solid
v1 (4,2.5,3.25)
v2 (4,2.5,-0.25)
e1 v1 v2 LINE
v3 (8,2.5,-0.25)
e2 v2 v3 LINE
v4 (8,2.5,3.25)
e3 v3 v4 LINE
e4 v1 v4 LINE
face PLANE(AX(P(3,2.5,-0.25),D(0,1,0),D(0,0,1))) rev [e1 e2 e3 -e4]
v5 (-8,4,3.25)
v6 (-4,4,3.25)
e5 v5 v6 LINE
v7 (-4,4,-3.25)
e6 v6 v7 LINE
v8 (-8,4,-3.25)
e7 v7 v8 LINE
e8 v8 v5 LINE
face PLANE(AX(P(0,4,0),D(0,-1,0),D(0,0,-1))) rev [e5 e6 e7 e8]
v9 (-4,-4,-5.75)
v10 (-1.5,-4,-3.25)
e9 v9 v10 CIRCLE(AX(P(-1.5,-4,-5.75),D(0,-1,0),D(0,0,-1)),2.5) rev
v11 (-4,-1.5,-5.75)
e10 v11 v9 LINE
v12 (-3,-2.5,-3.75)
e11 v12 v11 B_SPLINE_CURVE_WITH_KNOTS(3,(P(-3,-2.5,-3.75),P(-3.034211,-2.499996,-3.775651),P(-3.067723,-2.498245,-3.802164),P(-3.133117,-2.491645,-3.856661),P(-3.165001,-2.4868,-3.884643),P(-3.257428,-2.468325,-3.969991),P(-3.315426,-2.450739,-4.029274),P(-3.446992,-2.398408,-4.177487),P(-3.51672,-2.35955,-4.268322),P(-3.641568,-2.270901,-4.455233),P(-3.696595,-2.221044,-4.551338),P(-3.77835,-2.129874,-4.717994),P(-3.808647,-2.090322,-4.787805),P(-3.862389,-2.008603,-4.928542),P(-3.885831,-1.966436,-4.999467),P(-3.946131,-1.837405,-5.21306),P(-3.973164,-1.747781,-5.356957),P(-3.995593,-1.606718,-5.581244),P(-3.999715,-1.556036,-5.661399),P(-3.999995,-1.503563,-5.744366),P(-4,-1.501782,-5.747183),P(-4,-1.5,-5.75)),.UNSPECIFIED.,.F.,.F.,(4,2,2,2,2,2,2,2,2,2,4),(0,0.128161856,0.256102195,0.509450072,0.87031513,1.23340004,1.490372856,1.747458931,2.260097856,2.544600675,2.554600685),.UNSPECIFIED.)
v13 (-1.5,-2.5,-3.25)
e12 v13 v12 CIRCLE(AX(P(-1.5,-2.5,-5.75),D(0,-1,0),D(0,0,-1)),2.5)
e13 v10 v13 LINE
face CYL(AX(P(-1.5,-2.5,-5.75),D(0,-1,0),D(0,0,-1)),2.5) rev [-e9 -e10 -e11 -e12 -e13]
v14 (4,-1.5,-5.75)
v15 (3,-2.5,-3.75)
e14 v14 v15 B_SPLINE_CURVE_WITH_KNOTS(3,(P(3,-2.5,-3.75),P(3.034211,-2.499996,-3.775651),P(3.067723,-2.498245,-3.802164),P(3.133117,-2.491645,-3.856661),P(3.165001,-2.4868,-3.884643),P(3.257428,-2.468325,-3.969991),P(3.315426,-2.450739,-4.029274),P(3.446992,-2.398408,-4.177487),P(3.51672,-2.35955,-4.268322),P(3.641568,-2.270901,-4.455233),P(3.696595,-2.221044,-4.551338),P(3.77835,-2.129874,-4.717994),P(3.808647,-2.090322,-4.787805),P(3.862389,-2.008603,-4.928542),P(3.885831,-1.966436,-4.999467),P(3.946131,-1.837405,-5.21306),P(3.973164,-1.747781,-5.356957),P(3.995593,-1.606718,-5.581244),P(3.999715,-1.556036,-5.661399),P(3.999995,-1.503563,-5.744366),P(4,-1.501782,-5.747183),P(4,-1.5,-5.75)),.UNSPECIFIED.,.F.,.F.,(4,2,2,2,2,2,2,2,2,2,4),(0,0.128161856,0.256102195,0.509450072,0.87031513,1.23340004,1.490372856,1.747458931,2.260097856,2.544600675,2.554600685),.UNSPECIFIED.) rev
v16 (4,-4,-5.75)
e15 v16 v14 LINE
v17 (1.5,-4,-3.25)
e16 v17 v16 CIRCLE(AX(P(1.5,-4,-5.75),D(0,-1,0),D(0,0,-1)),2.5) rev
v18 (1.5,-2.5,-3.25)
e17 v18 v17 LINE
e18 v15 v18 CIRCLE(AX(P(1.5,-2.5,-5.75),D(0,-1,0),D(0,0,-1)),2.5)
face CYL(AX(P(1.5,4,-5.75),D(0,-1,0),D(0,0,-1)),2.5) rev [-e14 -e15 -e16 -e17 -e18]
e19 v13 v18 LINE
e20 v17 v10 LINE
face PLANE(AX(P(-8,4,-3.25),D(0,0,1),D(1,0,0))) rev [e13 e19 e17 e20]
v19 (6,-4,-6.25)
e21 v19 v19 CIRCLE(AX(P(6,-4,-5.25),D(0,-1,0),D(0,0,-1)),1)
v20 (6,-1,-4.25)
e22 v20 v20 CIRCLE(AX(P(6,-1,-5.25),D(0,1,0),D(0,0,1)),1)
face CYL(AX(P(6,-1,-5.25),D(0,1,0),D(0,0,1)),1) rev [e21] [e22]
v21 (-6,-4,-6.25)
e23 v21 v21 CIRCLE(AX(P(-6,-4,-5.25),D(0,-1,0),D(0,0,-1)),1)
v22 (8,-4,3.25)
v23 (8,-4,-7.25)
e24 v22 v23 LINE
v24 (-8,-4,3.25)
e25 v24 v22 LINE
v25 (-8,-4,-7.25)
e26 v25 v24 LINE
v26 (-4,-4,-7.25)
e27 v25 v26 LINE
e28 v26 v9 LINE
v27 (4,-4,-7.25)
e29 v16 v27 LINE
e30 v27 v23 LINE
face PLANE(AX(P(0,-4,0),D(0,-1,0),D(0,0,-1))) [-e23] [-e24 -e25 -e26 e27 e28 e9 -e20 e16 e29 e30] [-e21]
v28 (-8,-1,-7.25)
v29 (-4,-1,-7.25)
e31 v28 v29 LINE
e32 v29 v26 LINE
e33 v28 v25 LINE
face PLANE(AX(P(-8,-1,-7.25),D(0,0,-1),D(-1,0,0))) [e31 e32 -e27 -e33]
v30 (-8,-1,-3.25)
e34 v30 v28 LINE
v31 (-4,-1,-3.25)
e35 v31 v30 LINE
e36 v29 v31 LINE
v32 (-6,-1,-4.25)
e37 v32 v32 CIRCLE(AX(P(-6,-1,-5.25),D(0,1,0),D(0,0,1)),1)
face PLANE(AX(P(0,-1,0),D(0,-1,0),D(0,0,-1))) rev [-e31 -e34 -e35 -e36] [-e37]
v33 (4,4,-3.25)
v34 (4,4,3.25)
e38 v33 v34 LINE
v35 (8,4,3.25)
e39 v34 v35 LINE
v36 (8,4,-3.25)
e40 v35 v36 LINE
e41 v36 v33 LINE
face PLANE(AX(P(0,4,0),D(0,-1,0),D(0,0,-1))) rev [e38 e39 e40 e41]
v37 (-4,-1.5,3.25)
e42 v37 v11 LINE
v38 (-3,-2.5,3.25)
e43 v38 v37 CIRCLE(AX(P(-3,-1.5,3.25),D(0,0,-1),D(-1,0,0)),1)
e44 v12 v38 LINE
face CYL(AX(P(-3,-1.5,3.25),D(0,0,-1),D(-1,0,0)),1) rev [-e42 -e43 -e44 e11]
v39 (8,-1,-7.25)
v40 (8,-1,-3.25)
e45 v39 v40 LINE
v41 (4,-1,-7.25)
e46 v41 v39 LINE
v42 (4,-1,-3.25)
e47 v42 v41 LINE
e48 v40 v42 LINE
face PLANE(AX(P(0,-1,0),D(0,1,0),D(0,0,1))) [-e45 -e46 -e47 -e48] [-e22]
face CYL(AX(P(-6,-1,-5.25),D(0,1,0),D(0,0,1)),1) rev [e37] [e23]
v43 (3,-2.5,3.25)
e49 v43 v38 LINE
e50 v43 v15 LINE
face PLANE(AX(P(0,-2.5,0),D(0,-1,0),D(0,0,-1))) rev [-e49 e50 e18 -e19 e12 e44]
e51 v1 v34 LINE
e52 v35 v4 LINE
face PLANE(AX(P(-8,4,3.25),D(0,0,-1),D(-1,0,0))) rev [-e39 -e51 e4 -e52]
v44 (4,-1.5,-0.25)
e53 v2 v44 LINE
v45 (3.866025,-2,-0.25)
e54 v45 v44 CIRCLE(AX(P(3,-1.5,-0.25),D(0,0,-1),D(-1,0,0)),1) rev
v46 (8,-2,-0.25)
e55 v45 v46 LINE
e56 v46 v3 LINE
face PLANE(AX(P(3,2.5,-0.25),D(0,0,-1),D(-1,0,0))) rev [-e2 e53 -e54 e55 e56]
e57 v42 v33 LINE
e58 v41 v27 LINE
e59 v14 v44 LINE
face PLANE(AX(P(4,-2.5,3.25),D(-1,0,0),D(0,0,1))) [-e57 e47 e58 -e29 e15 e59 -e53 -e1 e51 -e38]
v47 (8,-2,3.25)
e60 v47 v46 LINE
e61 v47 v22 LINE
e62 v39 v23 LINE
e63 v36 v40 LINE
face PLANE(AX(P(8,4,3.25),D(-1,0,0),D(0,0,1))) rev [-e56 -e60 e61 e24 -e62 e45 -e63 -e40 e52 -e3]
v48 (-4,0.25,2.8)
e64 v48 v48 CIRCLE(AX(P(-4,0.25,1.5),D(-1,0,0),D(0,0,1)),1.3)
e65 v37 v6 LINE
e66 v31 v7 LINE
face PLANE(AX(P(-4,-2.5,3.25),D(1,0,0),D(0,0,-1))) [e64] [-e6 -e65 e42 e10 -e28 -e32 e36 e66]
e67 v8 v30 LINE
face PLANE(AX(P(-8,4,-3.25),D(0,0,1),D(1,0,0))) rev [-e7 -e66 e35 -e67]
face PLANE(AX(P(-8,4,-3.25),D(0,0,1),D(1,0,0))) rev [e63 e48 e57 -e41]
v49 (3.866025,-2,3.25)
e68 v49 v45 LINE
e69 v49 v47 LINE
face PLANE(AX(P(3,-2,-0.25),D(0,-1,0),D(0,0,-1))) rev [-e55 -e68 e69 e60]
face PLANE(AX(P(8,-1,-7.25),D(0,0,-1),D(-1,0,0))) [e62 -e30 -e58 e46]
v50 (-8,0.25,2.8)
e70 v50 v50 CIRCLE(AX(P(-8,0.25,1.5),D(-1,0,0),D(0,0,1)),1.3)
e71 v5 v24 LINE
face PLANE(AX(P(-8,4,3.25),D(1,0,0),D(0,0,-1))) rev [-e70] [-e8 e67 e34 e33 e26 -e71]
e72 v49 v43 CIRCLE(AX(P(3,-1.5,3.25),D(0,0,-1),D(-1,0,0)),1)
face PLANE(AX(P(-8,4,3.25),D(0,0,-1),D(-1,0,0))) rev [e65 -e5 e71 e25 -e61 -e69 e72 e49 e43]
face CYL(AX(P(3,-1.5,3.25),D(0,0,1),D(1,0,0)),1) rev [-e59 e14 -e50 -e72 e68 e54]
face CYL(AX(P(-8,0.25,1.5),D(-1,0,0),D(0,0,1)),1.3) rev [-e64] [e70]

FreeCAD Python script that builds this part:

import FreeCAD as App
import Part
import Sketcher
from FreeCAD import Vector


def edges_at(feature, points):
    """Names of the edges that pass closest to the given points."""
    edges = feature.Shape.Edges
    near = lambda p: min(range(len(edges)), key=lambda i: edges[i].distToShape(Part.Vertex(*p))[0])
    return sorted({f"Edge{near(p) + 1}" for p in points})


def add_polygon(sketch, points):
    """Adds a closed chain of lines whose ends are joined by coincident constraints."""
    first, n = sketch.GeometryCount, len(points)
    for a, b in zip(points, points[1:] + points[:1]):
        sketch.addGeometry(Part.LineSegment(App.Vector(*a, 0), App.Vector(*b, 0)), False)
    for i in range(n):
        sketch.addConstraint(Sketcher.Constraint("Coincident", first + i, 2, first + (i + 1) % n, 1))

doc = App.newDocument("Part")
body = doc.addObject("PartDesign::Body", "Body")

# Sketch on XZ plane
sketch1 = body.newObject("Sketcher::SketchObject", "Sketch")
sketch1.AttachmentSupport = (doc.getObject("XZ_Plane"), [""])
sketch1.MapMode = "FlatFace"
add_polygon(sketch1, [(-8, -3), (-8, 3), (8, 3), (8, -3)])  # lines 0-3
sketch1.addConstraint([
    Sketcher.Constraint("Vertical", 0),
    Sketcher.Constraint("Horizontal", 1),
    Sketcher.Constraint("Vertical", 2),
    Sketcher.Constraint("Horizontal", 3),
    Sketcher.Constraint("Symmetric", 0, 2, 2, 2, -1, 1),
    Sketcher.Constraint("DistanceX", 1, 1, 1, 2, 16.0),
    Sketcher.Constraint("DistanceY", 0, 1, 0, 2, 6.5),
])
pad1 = body.newObject("PartDesign::Pad", "Pad")
pad1.Profile = sketch1
pad1.Length = 8
pad1.Midplane = True

# Sketch on XZ plane
sketch2 = body.newObject("Sketcher::SketchObject", "Sketch001")
sketch2.AttachmentSupport = (doc.getObject("XZ_Plane"), [""])
sketch2.MapMode = "FlatFace"
sketch2.AttachmentOffset = App.Placement(Vector(0, 0, -4), App.Rotation())
add_polygon(sketch2, [(-4, 3), (-4, -3), (4, -3), (4, 3)])  # lines 0-3
sketch2.addConstraint([
    Sketcher.Constraint("Vertical", 0),
    Sketcher.Constraint("Horizontal", 1),
    Sketcher.Constraint("Vertical", 2),
    Sketcher.Constraint("Horizontal", 3),
    Sketcher.Constraint("Symmetric", 0, 2, 2, 2, -1, 1),
    Sketcher.Constraint("DistanceX", 1, 1, 1, 2, 8.0),
    Sketcher.Constraint("DistanceY", 0, 2, 0, 1, 6.5),
])
pocket1 = body.newObject("PartDesign::Pocket", "Pocket")
pocket1.Profile = sketch2
pocket1.Length = 6.5
pocket1.Reversed = True

# Sketch on XZ plane
sketch3 = body.newObject("Sketcher::SketchObject", "Sketch002")
sketch3.AttachmentSupport = (doc.getObject("XZ_Plane"), [""])
sketch3.MapMode = "FlatFace"
sketch3.AttachmentOffset = App.Placement(Vector(0, 0, 4), App.Rotation())
add_polygon(sketch3, [(4, -3.2), (4, -7.2), (8, -7.2), (8, -3.2)])  # lines 0-3
add_polygon(sketch3, [(-8, -3.2), (-8, -7.2), (-4, -7.2), (-4, -3.2)])  # lines 4-7
sketch3.addConstraint([
    Sketcher.Constraint("Vertical", 0),
    Sketcher.Constraint("Horizontal", 1),
    Sketcher.Constraint("Vertical", 2),
    Sketcher.Constraint("Horizontal", 3),
    Sketcher.Constraint("Vertical", 4),
    Sketcher.Constraint("Horizontal", 5),
    Sketcher.Constraint("Vertical", 6),
    Sketcher.Constraint("Horizontal", 7),
    Sketcher.Constraint("Symmetric", 1, 2, 4, 2, -2),
    Sketcher.Constraint("Symmetric", 3, 2, 6, 2, -2),
    Sketcher.Constraint("Equal", 7, 0),
    Sketcher.Constraint("DistanceX", 1, 1, 1, 2, 4.0),
    Sketcher.Constraint("DistanceX", -1, 1, 0, 2, 4.0),
    Sketcher.Constraint("DistanceY", 0, 2, -1, 1, 7.25),
])
pad2 = body.newObject("PartDesign::Pad", "Pad001")
pad2.Profile = sketch3
pad2.Length = 3
pad2.Reversed = True

# Sketch on XZ plane
sketch4 = body.newObject("Sketcher::SketchObject", "Sketch003")
sketch4.AttachmentSupport = (doc.getObject("XZ_Plane"), [""])
sketch4.MapMode = "FlatFace"
sketch4.AttachmentOffset = App.Placement(Vector(0, 0, 1), App.Rotation())
sketch4.addGeometry([
    Part.Circle(Vector(6, -5.2, 0), Vector(0, 0, 1), 1),
    Part.Circle(Vector(-6, -5.2, 0), Vector(0, 0, 1), 1),
], False)
sketch4.addConstraint([
    Sketcher.Constraint("Equal", 0, 1),
    Sketcher.Constraint("Symmetric", 0, 3, 1, 3, -2),
    Sketcher.Constraint("Diameter", 0, 2.0),
    Sketcher.Constraint("DistanceX", -1, 1, 0, 3, 6.0),
    Sketcher.Constraint("DistanceY", 0, 3, -1, 1, 5.25),
])
doc.recompute()
hole = body.newObject("PartDesign::Hole", "Hole")
hole.Profile = sketch4
hole.ThreadType = "None"
hole.Diameter = 2
hole.DepthType = "Dimension"
hole.Depth = 4
hole.DrillPoint = "Angled"
hole.DrillPointAngle = 118
hole.Reversed = True
doc.recompute()

fillet = body.newObject("PartDesign::Fillet", "Fillet")
fillet.Base = (hole, edges_at(hole, [(4, -2.5, 0), (-4, -2.5, 0)]))
fillet.Radius = 1
doc.recompute()

fillet2 = body.newObject("PartDesign::Fillet", "Fillet001")
fillet2.Base = (fillet, edges_at(fillet, [(-4, -2.75, -3.25), (4, -2.75, -3.25)]))
fillet2.Radius = 2.5

# Sketch on YZ plane
sketch5 = body.newObject("Sketcher::SketchObject", "Sketch004")
sketch5.AttachmentSupport = (doc.getObject("YZ_Plane"), [""])
sketch5.MapMode = "FlatFace"
sketch5.AttachmentOffset = App.Placement(Vector(0, 0, 8), App.Rotation())
add_polygon(sketch5, [(2.5, 3.2), (-2, 3.2), (-2, -0.2), (2.5, -0.2)])  # lines 0-3
sketch5.addConstraint([
    Sketcher.Constraint("Horizontal", 0),
    Sketcher.Constraint("Vertical", 1),
    Sketcher.Constraint("Horizontal", 2),
    Sketcher.Constraint("Vertical", 3),
    Sketcher.Constraint("DistanceX", 0, 2, 0, 1, 4.5),
    Sketcher.Constraint("DistanceY", 1, 2, 1, 1, 3.5),
    Sketcher.Constraint("DistanceX", 0, 2, -1, 1, 2.0),
    Sketcher.Constraint("DistanceY", -1, 1, 0, 2, 3.25),
])
pocket2 = body.newObject("PartDesign::Pocket", "Pocket001")
pocket2.Profile = sketch5
pocket2.Length = 5

# Sketch on YZ plane
sketch6 = body.newObject("Sketcher::SketchObject", "Sketch005")
sketch6.AttachmentSupport = (doc.getObject("YZ_Plane"), [""])
sketch6.MapMode = "FlatFace"
sketch6.AttachmentOffset = App.Placement(Vector(0, 0, -8), App.Rotation())
sketch6.addGeometry(Part.Circle(Vector(0.2, 1.5, 0), Vector(0, 0, 1), 1.3), False)
sketch6.addConstraint([
    Sketcher.Constraint("Diameter", 0, 2.6),
    Sketcher.Constraint("DistanceY", -1, 1, 0, 3, 1.5),
    Sketcher.Constraint("DistanceX", -1, 1, 0, 3, 0.25),
])
doc.recompute()
hole2 = body.newObject("PartDesign::Hole", "Hole001")
hole2.Profile = sketch6
hole2.ThreadType = "None"
hole2.Diameter = 2.6
hole2.DepthType = "Dimension"
hole2.Depth = 4
hole2.DrillPoint = "Angled"
hole2.DrillPointAngle = 118
hole2.Reversed = True

doc.recompute()
